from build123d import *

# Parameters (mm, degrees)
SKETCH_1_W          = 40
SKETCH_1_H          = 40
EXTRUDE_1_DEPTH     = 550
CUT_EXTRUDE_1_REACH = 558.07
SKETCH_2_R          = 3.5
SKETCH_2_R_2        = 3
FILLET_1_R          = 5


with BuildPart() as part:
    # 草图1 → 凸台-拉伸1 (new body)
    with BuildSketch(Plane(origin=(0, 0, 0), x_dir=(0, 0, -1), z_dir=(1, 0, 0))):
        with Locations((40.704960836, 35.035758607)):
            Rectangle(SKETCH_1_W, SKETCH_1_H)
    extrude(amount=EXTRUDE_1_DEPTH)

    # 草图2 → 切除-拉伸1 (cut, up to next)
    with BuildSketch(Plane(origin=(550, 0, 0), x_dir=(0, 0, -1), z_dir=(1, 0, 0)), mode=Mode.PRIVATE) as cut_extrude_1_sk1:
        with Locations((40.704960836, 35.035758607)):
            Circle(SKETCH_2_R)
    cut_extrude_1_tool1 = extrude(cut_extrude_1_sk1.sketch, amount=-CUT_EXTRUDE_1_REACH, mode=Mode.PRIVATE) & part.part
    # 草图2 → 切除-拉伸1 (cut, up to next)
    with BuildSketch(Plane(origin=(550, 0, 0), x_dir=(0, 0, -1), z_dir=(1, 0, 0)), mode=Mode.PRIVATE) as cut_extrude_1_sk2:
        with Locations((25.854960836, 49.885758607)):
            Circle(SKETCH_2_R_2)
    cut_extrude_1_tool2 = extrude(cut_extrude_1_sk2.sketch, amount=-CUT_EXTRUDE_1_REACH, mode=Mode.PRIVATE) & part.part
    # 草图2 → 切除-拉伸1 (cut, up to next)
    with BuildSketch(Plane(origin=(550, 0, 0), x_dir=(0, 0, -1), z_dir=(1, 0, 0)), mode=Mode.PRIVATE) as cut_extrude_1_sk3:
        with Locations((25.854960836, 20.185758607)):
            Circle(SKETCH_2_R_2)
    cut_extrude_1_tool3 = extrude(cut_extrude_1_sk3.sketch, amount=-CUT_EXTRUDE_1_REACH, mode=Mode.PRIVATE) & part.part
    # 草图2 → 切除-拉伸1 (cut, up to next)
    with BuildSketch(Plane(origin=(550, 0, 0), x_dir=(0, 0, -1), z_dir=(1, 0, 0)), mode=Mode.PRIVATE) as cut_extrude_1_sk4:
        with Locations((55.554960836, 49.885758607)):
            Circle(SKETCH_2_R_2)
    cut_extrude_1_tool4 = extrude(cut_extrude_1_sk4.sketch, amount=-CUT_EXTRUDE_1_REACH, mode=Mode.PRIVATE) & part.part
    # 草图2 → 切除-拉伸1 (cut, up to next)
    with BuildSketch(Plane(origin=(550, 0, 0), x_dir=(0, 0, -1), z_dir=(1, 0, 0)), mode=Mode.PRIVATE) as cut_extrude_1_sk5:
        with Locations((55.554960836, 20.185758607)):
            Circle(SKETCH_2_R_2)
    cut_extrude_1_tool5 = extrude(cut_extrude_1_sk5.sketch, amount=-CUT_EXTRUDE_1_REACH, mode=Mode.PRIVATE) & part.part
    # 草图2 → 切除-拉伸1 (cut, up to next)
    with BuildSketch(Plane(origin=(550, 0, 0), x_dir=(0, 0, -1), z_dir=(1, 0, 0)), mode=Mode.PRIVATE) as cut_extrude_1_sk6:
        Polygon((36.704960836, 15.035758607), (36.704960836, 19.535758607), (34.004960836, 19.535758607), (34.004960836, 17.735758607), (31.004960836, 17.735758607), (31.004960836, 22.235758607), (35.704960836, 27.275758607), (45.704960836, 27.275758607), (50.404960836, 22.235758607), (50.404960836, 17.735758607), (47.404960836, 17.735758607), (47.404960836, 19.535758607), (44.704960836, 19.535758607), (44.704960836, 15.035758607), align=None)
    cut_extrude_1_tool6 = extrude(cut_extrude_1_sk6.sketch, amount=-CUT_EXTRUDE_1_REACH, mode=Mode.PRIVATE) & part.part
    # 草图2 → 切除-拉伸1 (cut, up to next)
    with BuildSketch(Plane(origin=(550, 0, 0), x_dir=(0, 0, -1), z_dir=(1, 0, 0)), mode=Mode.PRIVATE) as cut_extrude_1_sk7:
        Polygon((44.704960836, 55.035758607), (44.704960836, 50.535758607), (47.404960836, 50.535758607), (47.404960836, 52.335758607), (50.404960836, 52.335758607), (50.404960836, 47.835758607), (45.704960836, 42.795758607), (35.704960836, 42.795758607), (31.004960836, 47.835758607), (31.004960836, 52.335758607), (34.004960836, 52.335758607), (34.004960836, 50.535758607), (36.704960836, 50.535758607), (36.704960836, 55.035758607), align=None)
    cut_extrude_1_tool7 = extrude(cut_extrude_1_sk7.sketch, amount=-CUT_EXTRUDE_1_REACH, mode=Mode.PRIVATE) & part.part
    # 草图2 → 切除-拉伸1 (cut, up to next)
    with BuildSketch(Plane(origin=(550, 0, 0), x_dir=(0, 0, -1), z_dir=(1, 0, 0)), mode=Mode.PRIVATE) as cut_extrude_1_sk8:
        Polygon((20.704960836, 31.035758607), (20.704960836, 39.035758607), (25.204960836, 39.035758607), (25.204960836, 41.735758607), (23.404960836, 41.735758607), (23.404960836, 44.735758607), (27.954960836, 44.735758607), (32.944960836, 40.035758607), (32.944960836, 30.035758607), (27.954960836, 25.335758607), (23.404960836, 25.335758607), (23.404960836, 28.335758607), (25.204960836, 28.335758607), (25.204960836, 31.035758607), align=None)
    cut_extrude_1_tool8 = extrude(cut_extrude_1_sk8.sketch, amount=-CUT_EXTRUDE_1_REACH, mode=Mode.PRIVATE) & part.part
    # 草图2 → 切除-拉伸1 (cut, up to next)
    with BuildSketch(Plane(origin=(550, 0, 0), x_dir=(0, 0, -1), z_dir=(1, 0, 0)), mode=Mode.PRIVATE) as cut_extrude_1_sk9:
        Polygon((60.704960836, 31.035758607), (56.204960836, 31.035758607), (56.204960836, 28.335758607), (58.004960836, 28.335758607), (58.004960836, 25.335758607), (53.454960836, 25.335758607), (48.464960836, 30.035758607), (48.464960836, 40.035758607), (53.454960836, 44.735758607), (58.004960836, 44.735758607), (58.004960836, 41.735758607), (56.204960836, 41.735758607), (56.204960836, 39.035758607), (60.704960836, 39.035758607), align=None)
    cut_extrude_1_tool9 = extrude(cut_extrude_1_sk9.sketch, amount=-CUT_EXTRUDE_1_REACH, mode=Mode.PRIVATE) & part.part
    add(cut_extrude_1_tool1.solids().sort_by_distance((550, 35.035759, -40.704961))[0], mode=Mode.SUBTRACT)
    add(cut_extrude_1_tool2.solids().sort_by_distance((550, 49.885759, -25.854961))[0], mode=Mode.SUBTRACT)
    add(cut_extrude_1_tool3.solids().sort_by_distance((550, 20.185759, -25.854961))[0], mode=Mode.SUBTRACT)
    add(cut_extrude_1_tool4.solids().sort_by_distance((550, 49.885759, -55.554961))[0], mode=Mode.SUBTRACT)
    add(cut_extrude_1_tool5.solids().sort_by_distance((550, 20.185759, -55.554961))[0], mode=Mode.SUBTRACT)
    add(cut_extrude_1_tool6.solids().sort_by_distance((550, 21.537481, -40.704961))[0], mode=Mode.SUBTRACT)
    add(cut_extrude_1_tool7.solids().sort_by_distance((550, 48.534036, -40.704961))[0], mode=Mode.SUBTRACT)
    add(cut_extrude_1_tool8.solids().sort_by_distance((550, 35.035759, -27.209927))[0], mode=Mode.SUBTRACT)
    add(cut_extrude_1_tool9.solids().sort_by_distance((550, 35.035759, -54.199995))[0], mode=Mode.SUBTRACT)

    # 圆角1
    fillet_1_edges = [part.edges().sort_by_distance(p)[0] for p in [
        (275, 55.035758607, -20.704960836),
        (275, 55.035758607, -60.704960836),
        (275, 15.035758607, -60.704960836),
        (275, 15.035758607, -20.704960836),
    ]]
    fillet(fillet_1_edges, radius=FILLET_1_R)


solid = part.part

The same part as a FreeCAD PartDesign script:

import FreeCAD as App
import Part
import Sketcher
from FreeCAD import Vector


def edges_at(feature, points):
    """Names of the edges that pass closest to the given points."""
    edges = feature.Shape.Edges
    near = lambda p: min(range(len(edges)), key=lambda i: edges[i].distToShape(Part.Vertex(*p))[0])
    return sorted({f"Edge{near(p) + 1}" for p in points})


def add_polygon(sketch, points):
    """Adds a closed chain of lines whose ends are joined by coincident constraints."""
    first, n = sketch.GeometryCount, len(points)
    for a, b in zip(points, points[1:] + points[:1]):
        sketch.addGeometry(Part.LineSegment(App.Vector(*a, 0), App.Vector(*b, 0)), False)
    for i in range(n):
        sketch.addConstraint(Sketcher.Constraint("Coincident", first + i, 2, first + (i + 1) % n, 1))

doc = App.newDocument("Part")
body = doc.addObject("PartDesign::Body", "Body")

# Sketch on YZ plane
sketch1 = doc.addObject("Sketcher::SketchObject", "Sketch")
body.addObject(sketch1)
sketch1.AttachmentSupport = (doc.YZ_Plane, [""])
sketch1.MapMode = "FlatFace"
add_polygon(sketch1, [(55.035759, -20.704961), (15.035759, -20.704961), (15.035759, -60.704961), (55.035759, -60.704961)])  # lines 0-3
sketch1.addConstraint([
    Sketcher.Constraint("Horizontal", 0),
    Sketcher.Constraint("Vertical", 1),
    Sketcher.Constraint("Horizontal", 2),
    Sketcher.Constraint("Vertical", 3),
    Sketcher.Constraint("Equal", 2, 1),
    Sketcher.Constraint("DistanceX", 0, 2, 0, 1, 40.0),
    Sketcher.Constraint("DistanceX", -1, 1, 0, 2, 15.035759),
    Sketcher.Constraint("DistanceY", 0, 2, -1, 1, 20.704961),
])
pad1 = doc.addObject("PartDesign::Pad", "Pad")
body.addObject(pad1)
pad1.Profile = sketch1
pad1.Length = 550

# Sketch on YZ plane
sketch2 = doc.addObject("Sketcher::SketchObject", "Sketch001")
body.addObject(sketch2)
sketch2.AttachmentSupport = (doc.YZ_Plane, [""])
sketch2.MapMode = "FlatFace"
sketch2.AttachmentOffset = App.Placement(Vector(0, 0, 550), App.Rotation())
sketch2.addGeometry(Part.Circle(Vector(35.035759, -40.704961, 0), Vector(0, 0, 1), 3.5), False)
sketch2.addConstraint([
    Sketcher.Constraint("Diameter", 0, 7.0),
    Sketcher.Constraint("DistanceX", -1, 1, 0, 3, 35.035759),
    Sketcher.Constraint("DistanceY", 0, 3, -1, 1, 40.704961),
])
pocket1 = doc.addObject("PartDesign::Pocket", "Pocket")
body.addObject(pocket1)
pocket1.Profile = sketch2
pocket1.Type = "UpToFirst"

# Sketch on YZ plane
sketch3 = doc.addObject("Sketcher::SketchObject", "Sketch002")
body.addObject(sketch3)
sketch3.AttachmentSupport = (doc.YZ_Plane, [""])
sketch3.MapMode = "FlatFace"
sketch3.AttachmentOffset = App.Placement(Vector(0, 0, 550), App.Rotation())
sketch3.addGeometry(Part.Circle(Vector(49.885759, -25.854961, 0), Vector(0, 0, 1), 3), False)
sketch3.addConstraint([
    Sketcher.Constraint("Diameter", 0, 6.0),
    Sketcher.Constraint("DistanceX", -1, 1, 0, 3, 49.885759),
    Sketcher.Constraint("DistanceY", 0, 3, -1, 1, 25.854961),
])
pocket2 = doc.addObject("PartDesign::Pocket", "Pocket001")
body.addObject(pocket2)
pocket2.Profile = sketch3
pocket2.Type = "UpToFirst"

# Sketch on YZ plane
sketch4 = doc.addObject("Sketcher::SketchObject", "Sketch003")
body.addObject(sketch4)
sketch4.AttachmentSupport = (doc.YZ_Plane, [""])
sketch4.MapMode = "FlatFace"
sketch4.AttachmentOffset = App.Placement(Vector(0, 0, 550), App.Rotation())
sketch4.addGeometry(Part.Circle(Vector(20.185759, -25.854961, 0), Vector(0, 0, 1), 3), False)
sketch4.addConstraint([
    Sketcher.Constraint("Diameter", 0, 6.0),
    Sketcher.Constraint("DistanceX", -1, 1, 0, 3, 20.185759),
    Sketcher.Constraint("DistanceY", 0, 3, -1, 1, 25.854961),
])
pocket3 = doc.addObject("PartDesign::Pocket", "Pocket002")
body.addObject(pocket3)
pocket3.Profile = sketch4
pocket3.Type = "UpToFirst"

# Sketch on YZ plane
sketch5 = doc.addObject("Sketcher::SketchObject", "Sketch004")
body.addObject(sketch5)
sketch5.AttachmentSupport = (doc.YZ_Plane, [""])
sketch5.MapMode = "FlatFace"
sketch5.AttachmentOffset = App.Placement(Vector(0, 0, 550), App.Rotation())
sketch5.addGeometry(Part.Circle(Vector(49.885759, -55.554961, 0), Vector(0, 0, 1), 3), False)
sketch5.addConstraint([
    Sketcher.Constraint("Diameter", 0, 6.0),
    Sketcher.Constraint("DistanceX", -1, 1, 0, 3, 49.885759),
    Sketcher.Constraint("DistanceY", 0, 3, -1, 1, 55.554961),
])
pocket4 = doc.addObject("PartDesign::Pocket", "Pocket003")
body.addObject(pocket4)
pocket4.Profile = sketch5
pocket4.Type = "UpToFirst"

# Sketch on YZ plane
sketch6 = doc.addObject("Sketcher::SketchObject", "Sketch005")
body.addObject(sketch6)
sketch6.AttachmentSupport = (doc.YZ_Plane, [""])
sketch6.MapMode = "FlatFace"
sketch6.AttachmentOffset = App.Placement(Vector(0, 0, 550), App.Rotation())
sketch6.addGeometry(Part.Circle(Vector(20.185759, -55.554961, 0), Vector(0, 0, 1), 3), False)
sketch6.addConstraint([
    Sketcher.Constraint("Diameter", 0, 6.0),
    Sketcher.Constraint("DistanceX", -1, 1, 0, 3, 20.185759),
    Sketcher.Constraint("DistanceY", 0, 3, -1, 1, 55.554961),
])
pocket5 = doc.addObject("PartDesign::Pocket", "Pocket004")
body.addObject(pocket5)
pocket5.Profile = sketch6
pocket5.Type = "UpToFirst"

# Sketch on YZ plane
sketch7 = doc.addObject("Sketcher::SketchObject", "Sketch006")
body.addObject(sketch7)
sketch7.AttachmentSupport = (doc.YZ_Plane, [""])
sketch7.MapMode = "FlatFace"
sketch7.AttachmentOffset = App.Placement(Vector(0, 0, 550), App.Rotation())
add_polygon(sketch7, [(19.535759, -36.704961), (15.035759, -36.704961), (15.035759, -44.704961), (19.535759, -44.704961), (19.535759, -47.404961), (17.735759, -47.404961), (17.735759, -50.404961), (22.235759, -50.404961), (27.275759, -45.704961), (27.275759, -35.704961), (22.235759, -31.004961), (17.735759, -31.004961), (17.735759, -34.004961), (19.535759, -34.004961)])  # lines 0-13
sketch7.addConstraint([
    Sketcher.Constraint("Horizontal", 0),
    Sketcher.Constraint("Vertical", 1),
    Sketcher.Constraint("Horizontal", 2),
    Sketcher.Constraint("Vertical", 3),
    Sketcher.Constraint("Horizontal", 4),
    Sketcher.Constraint("Vertical", 5),
    Sketcher.Constraint("Horizontal", 6),
    Sketcher.Constraint("Vertical", 8),
    Sketcher.Constraint("Horizontal", 10),
    Sketcher.Constraint("Vertical", 11),
    Sketcher.Constraint("Horizontal", 12),
    Sketcher.Constraint("Vertical", 13),
    Sketcher.Constraint("Vertical", 6, 2, 9, 2),
    Sketcher.Constraint("Vertical", 5, 2, 10, 2),
    Sketcher.Constraint("Vertical", 3, 2, 12, 2),
    Sketcher.Constraint("Equal", 2, 6),
    Sketcher.Constraint("Equal", 5, 11),
    Sketcher.Constraint("Equal", 3, 13),
    Sketcher.Constraint("Equal", 7, 9),
    Sketcher.Constraint("DistanceY", 1, 2, 1, 1, 8.0),
    Sketcher.Constraint("DistanceY", 5, 2, 5, 1, 3.0),
    Sketcher.Constraint("DistanceY", 8, 1, 8, 2, 10.0),
    Sketcher.Constraint("DistanceX", 0, 2, 0, 1, 4.5),
    Sketcher.Constraint("DistanceX", 4, 2, 4, 1, 1.8),
    Sketcher.Constraint("DistanceY", 3, 2, 3, 1, 2.7),
    Sketcher.Constraint("DistanceX", 6, 2, 7, 2, 5.04),
    Sketcher.Constraint("DistanceX", -1, 1, 0, 2, 15.035759),
    Sketcher.Constraint("DistanceY", 0, 2, -1, 1, 36.704961),
])
pocket6 = doc.addObject("PartDesign::Pocket", "Pocket005")
body.addObject(pocket6)
pocket6.Profile = sketch7
pocket6.Type = "UpToFirst"

# Sketch on YZ plane
sketch8 = doc.addObject("Sketcher::SketchObject", "Sketch007")
body.addObject(sketch8)
sketch8.AttachmentSupport = (doc.YZ_Plane, [""])
sketch8.MapMode = "FlatFace"
sketch8.AttachmentOffset = App.Placement(Vector(0, 0, 550), App.Rotation())
add_polygon(sketch8, [(50.535759, -44.704961), (55.035759, -44.704961), (55.035759, -36.704961), (50.535759, -36.704961), (50.535759, -34.004961), (52.335759, -34.004961), (52.335759, -31.004961), (47.835759, -31.004961), (42.795759, -35.704961), (42.795759, -45.704961), (47.835759, -50.404961), (52.335759, -50.404961), (52.335759, -47.404961), (50.535759, -47.404961)])  # lines 0-13
sketch8.addConstraint([
    Sketcher.Constraint("Horizontal", 0),
    Sketcher.Constraint("Vertical", 1),
    Sketcher.Constraint("Horizontal", 2),
    Sketcher.Constraint("Vertical", 3),
    Sketcher.Constraint("Horizontal", 4),
    Sketcher.Constraint("Vertical", 5),
    Sketcher.Constraint("Horizontal", 6),
    Sketcher.Constraint("Vertical", 8),
    Sketcher.Constraint("Horizontal", 10),
    Sketcher.Constraint("Vertical", 11),
    Sketcher.Constraint("Horizontal", 12),
    Sketcher.Constraint("Vertical", 13),
    Sketcher.Constraint("Vertical", 6, 2, 9, 2),
    Sketcher.Constraint("Vertical", 5, 2, 10, 2),
    Sketcher.Constraint("Vertical", 3, 2, 12, 2),
    Sketcher.Constraint("Equal", 2, 6),
    Sketcher.Constraint("Equal", 5, 11),
    Sketcher.Constraint("Equal", 3, 13),
    Sketcher.Constraint("Equal", 7, 9),
    Sketcher.Constraint("DistanceY", 1, 1, 1, 2, 8.0),
    Sketcher.Constraint("DistanceY", 5, 1, 5, 2, 3.0),
    Sketcher.Constraint("DistanceY", 8, 2, 8, 1, 10.0),
    Sketcher.Constraint("DistanceX", 0, 1, 0, 2, 4.5),
    Sketcher.Constraint("DistanceX", 4, 1, 4, 2, 1.8),
    Sketcher.Constraint("DistanceY", 3, 1, 3, 2, 2.7),
    Sketcher.Constraint("DistanceX", 7, 2, 6, 2, 5.04),
    Sketcher.Constraint("DistanceX", -1, 1, 0, 2, 55.035759),
    Sketcher.Constraint("DistanceY", 0, 2, -1, 1, 44.704961),
])
pocket7 = doc.addObject("PartDesign::Pocket", "Pocket006")
body.addObject(pocket7)
pocket7.Profile = sketch8
pocket7.Type = "UpToFirst"

# Sketch on YZ plane
sketch9 = doc.addObject("Sketcher::SketchObject", "Sketch008")
body.addObject(sketch9)
sketch9.AttachmentSupport = (doc.YZ_Plane, [""])
sketch9.MapMode = "FlatFace"
sketch9.AttachmentOffset = App.Placement(Vector(0, 0, 550), App.Rotation())
add_polygon(sketch9, [(39.035759, -20.704961), (31.035759, -20.704961), (31.035759, -25.204961), (28.335759, -25.204961), (28.335759, -23.404961), (25.335759, -23.404961), (25.335759, -27.954961), (30.035759, -32.944961), (40.035759, -32.944961), (44.735759, -27.954961), (44.735759, -23.404961), (41.735759, -23.404961), (41.735759, -25.204961), (39.035759, -25.204961)])  # lines 0-13
sketch9.addConstraint([
    Sketcher.Constraint("Horizontal", 0),
    Sketcher.Constraint("Vertical", 1),
    Sketcher.Constraint("Horizontal", 2),
    Sketcher.Constraint("Vertical", 3),
    Sketcher.Constraint("Horizontal", 4),
    Sketcher.Constraint("Vertical", 5),
    Sketcher.Constraint("Horizontal", 7),
    Sketcher.Constraint("Vertical", 9),
    Sketcher.Constraint("Horizontal", 10),
    Sketcher.Constraint("Vertical", 11),
    Sketcher.Constraint("Horizontal", 12),
    Sketcher.Constraint("Vertical", 13),
    Sketcher.Constraint("Horizontal", 5, 2, 8, 2),
    Sketcher.Constraint("Horizontal", 4, 2, 9, 2),
    Sketcher.Constraint("Horizontal", 2, 2, 11, 2),
    Sketcher.Constraint("Equal", 4, 10),
    Sketcher.Constraint("Equal", 2, 12),
    Sketcher.Constraint("Equal", 6, 8),
    Sketcher.Constraint("DistanceX", 0, 2, 0, 1, 8.0),
    Sketcher.Constraint("DistanceX", 4, 2, 4, 1, 3.0),
    Sketcher.Constraint("DistanceX", 7, 1, 7, 2, 10.0),
    Sketcher.Constraint("DistanceX", 2, 2, 2, 1, 2.7),
    Sketcher.Constraint("DistanceY", 1, 2, 1, 1, 4.5),
    Sketcher.Constraint("DistanceY", 3, 1, 3, 2, 1.8),
    Sketcher.Constraint("DistanceY", 5, 2, 5, 1, 4.55),
    Sketcher.Constraint("DistanceY", 6, 2, 5, 2, 4.99),
    Sketcher.Constraint("DistanceX", -1, 1, 0, 2, 31.035759),
    Sketcher.Constraint("DistanceY", 0, 2, -1, 1, 20.704961),
])
pocket8 = doc.addObject("PartDesign::Pocket", "Pocket007")
body.addObject(pocket8)
pocket8.Profile = sketch9
pocket8.Type = "UpToFirst"

# Sketch on YZ plane
sketch10 = doc.addObject("Sketcher::SketchObject", "Sketch009")
body.addObject(sketch10)
sketch10.AttachmentSupport = (doc.YZ_Plane, [""])
sketch10.MapMode = "FlatFace"
sketch10.AttachmentOffset = App.Placement(Vector(0, 0, 550), App.Rotation())
add_polygon(sketch10, [(31.035759, -56.204961), (31.035759, -60.704961), (39.035759, -60.704961), (39.035759, -56.204961), (41.735759, -56.204961), (41.735759, -58.004961), (44.735759, -58.004961), (44.735759, -53.454961), (40.035759, -48.464961), (30.035759, -48.464961), (25.335759, -53.454961), (25.335759, -58.004961), (28.335759, -58.004961), (28.335759, -56.204961)])  # lines 0-13
sketch10.addConstraint([
    Sketcher.Constraint("Vertical", 0),
    Sketcher.Constraint("Horizontal", 1),
    Sketcher.Constraint("Vertical", 2),
    Sketcher.Constraint("Horizontal", 3),
    Sketcher.Constraint("Vertical", 4),
    Sketcher.Constraint("Horizontal", 5),
    Sketcher.Constraint("Vertical", 6),
    Sketcher.Constraint("Horizontal", 8),
    Sketcher.Constraint("Vertical", 10),
    Sketcher.Constraint("Horizontal", 11),
    Sketcher.Constraint("Vertical", 12),
    Sketcher.Constraint("Horizontal", 13),
    Sketcher.Constraint("Horizontal", 6, 2, 9, 2),
    Sketcher.Constraint("Horizontal", 5, 2, 10, 2),
    Sketcher.Constraint("Horizontal", 3, 2, 12, 2),
    Sketcher.Constraint("Equal", 5, 11),
    Sketcher.Constraint("Equal", 3, 13),
    Sketcher.Constraint("Equal", 7, 9),
    Sketcher.Constraint("DistanceX", 1, 1, 1, 2, 8.0),
    Sketcher.Constraint("DistanceX", 5, 1, 5, 2, 3.0),
    Sketcher.Constraint("DistanceX", 8, 2, 8, 1, 10.0),
    Sketcher.Constraint("DistanceX", 3, 1, 3, 2, 2.7),
    Sketcher.Constraint("DistanceY", 0, 2, 0, 1, 4.5),
    Sketcher.Constraint("DistanceY", 4, 2, 4, 1, 1.8),
    Sketcher.Constraint("DistanceY", 6, 1, 6, 2, 4.55),
    Sketcher.Constraint("DistanceY", 6, 2, 7, 2, 4.99),
    Sketcher.Constraint("DistanceX", -1, 1, 0, 2, 31.035759),
    Sketcher.Constraint("DistanceY", 0, 2, -1, 1, 60.704961),
])
pocket9 = doc.addObject("PartDesign::Pocket", "Pocket008")
body.addObject(pocket9)
pocket9.Profile = sketch10
pocket9.Type = "UpToFirst"
doc.recompute()

fillet = doc.addObject("PartDesign::Fillet", "Fillet")
body.addObject(fillet)
fillet.Base = (pocket9, edges_at(pocket9, [
    (275, 55.036, -20.705),
    (275, 55.036, -60.705),
    (275, 15.036, -60.705),
    (275, 15.036, -20.705),
]))
fillet.Radius = 5

doc.recompute()
